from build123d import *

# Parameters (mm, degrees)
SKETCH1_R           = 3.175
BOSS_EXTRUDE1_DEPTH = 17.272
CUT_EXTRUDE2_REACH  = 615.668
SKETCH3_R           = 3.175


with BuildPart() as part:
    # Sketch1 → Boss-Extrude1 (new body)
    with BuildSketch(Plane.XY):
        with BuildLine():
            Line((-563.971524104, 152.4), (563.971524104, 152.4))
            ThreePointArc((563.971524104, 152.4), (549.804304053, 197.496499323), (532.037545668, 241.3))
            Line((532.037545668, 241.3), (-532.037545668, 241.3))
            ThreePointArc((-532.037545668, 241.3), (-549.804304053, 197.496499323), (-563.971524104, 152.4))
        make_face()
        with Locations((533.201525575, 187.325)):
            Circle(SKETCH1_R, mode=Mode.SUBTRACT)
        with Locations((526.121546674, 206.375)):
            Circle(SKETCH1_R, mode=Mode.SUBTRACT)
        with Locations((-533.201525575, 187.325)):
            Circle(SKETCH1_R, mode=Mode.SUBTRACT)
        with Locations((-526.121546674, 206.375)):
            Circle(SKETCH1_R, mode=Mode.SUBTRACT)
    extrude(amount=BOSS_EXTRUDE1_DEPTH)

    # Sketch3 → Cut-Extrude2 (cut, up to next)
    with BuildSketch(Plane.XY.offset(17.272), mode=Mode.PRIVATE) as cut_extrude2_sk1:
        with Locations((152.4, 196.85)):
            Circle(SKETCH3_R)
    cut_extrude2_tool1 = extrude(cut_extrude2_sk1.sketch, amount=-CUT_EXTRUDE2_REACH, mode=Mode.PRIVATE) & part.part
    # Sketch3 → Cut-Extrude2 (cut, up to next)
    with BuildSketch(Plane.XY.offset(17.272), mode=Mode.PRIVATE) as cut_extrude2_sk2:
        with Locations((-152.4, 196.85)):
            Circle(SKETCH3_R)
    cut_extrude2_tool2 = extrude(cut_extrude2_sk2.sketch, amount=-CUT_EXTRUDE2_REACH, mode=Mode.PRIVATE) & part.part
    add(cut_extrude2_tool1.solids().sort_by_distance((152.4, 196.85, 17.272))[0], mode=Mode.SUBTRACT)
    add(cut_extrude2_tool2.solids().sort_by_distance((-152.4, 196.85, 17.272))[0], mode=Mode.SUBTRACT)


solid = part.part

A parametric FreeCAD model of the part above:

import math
import FreeCAD as App
import Part
import Sketcher

V = App.Vector
Q = App.Units.Quantity

doc = App.newDocument("Part")
body = doc.addObject("PartDesign::Body", "Body")

# Sketch on XY plane
sketch1 = body.newObject("Sketcher::SketchObject", "Sketch")
sketch1.AttachmentSupport = (doc.getObject("XY_Plane"), [""])
sketch1.MapMode = "FlatFace"
sketch1.addGeometry([
    Part.LineSegment(V(-564, 152.4, 0), V(564, 152.4, 0)),  # 0
    Part.ArcOfCircle(Part.Circle(V(0, 0, 0), V(0, 0, 1), 584.2), math.radians(15.12), math.radians(24.4)),  # 1
    Part.LineSegment(V(532, 241.3, 0), V(-532, 241.3, 0)),  # 2
    Part.ArcOfCircle(Part.Circle(V(0, 0, 0), V(0, 0, 1), 584.2), math.radians(155.6), math.radians(164.88)),  # 3
    Part.Circle(V(-533.2, 187.3, 0), V(0, 0, 1), 3.2),  # 4
    Part.Circle(V(533.2, 187.3, 0), V(0, 0, 1), 3.2),  # 5
    Part.Circle(V(-526.1, 206.4, 0), V(0, 0, 1), 3.2),  # 6
    Part.Circle(V(526.1, 206.4, 0), V(0, 0, 1), 3.2),  # 7
], False)
sketch1.addConstraint([
    Sketcher.Constraint("Coincident", 0, 2, 1, 1),
    Sketcher.Constraint("Coincident", 1, 2, 2, 1),
    Sketcher.Constraint("Coincident", 2, 2, 3, 1),
    Sketcher.Constraint("Coincident", 3, 2, 0, 1),
    Sketcher.Constraint("Horizontal", 0),
    Sketcher.Constraint("Horizontal", 2),
    Sketcher.Constraint("Coincident", 1, 3, -1, 1),
    Sketcher.Constraint("Coincident", 3, 3, -1, 1),
    Sketcher.Constraint("Equal", 1, 3),
    Sketcher.Constraint("Equal", 4, 5),
    Sketcher.Constraint("Equal", 5, 6),
    Sketcher.Constraint("Equal", 6, 7),
    Sketcher.Constraint("Symmetric", 4, 3, 5, 3, -2),
    Sketcher.Constraint("Symmetric", 6, 3, 7, 3, -2),
    Sketcher.Constraint("Radius", 1, Q("23 in")),
    Sketcher.Constraint("Diameter", 4, Q("0.25 in")),
    Sketcher.Constraint("DistanceY", -1, 1, 0, 2, Q("6 in")),
    Sketcher.Constraint("DistanceY", -1, 1, 2, 2, Q("9.5 in")),
    Sketcher.Constraint("DistanceY", 4, 3, 6, 3, Q("0.75 in")),
    Sketcher.Constraint("DistanceY", -1, 1, 4, 3, Q("7.375 in")),
    Sketcher.Constraint("DistanceX", 5, 3, 0, 2, Q("30.769999 mm")),
    Sketcher.Constraint("DistanceX", 7, 3, 1, 2, Q("5.915999 mm")),
])
pad1 = body.newObject("PartDesign::Pad", "Pad")
pad1.Profile = sketch1
pad1.Length = Q("0.68 in")

# Sketch on XY plane
sketch2 = body.newObject("Sketcher::SketchObject", "Sketch001")
sketch2.AttachmentSupport = (doc.getObject("XY_Plane"), [""])
sketch2.MapMode = "FlatFace"
sketch2.AttachmentOffset = App.Placement(V(0, 0, 0.68 * 25.4), App.Rotation())
sketch2.addGeometry(Part.Circle(V(152.4, 196.8, 0), V(0, 0, 1), 3.2), False)
sketch2.addConstraint([
    Sketcher.Constraint("Diameter", 0, Q("0.25 in")),
    Sketcher.Constraint("DistanceX", -1, 1, 0, 3, Q("6 in")),
    Sketcher.Constraint("DistanceY", -1, 1, 0, 3, Q("7.75 in")),
])
pocket1 = body.newObject("PartDesign::Pocket", "Pocket")
pocket1.Profile = sketch2
pocket1.Type = "UpToFirst"

# Sketch on XY plane
sketch3 = body.newObject("Sketcher::SketchObject", "Sketch002")
sketch3.AttachmentSupport = (doc.getObject("XY_Plane"), [""])
sketch3.MapMode = "FlatFace"
sketch3.AttachmentOffset = App.Placement(V(0, 0, 0.68 * 25.4), App.Rotation())
sketch3.addGeometry(Part.Circle(V(-152.4, 196.8, 0), V(0, 0, 1), 3.2), False)
sketch3.addConstraint([
    Sketcher.Constraint("Diameter", 0, Q("0.25 in")),
    Sketcher.Constraint("DistanceX", 0, 3, -1, 1, Q("6 in")),
    Sketcher.Constraint("DistanceY", -1, 1, 0, 3, Q("7.75 in")),
])
pocket2 = body.newObject("PartDesign::Pocket", "Pocket001")
pocket2.Profile = sketch3
pocket2.Type = "UpToFirst"

doc.recompute()
